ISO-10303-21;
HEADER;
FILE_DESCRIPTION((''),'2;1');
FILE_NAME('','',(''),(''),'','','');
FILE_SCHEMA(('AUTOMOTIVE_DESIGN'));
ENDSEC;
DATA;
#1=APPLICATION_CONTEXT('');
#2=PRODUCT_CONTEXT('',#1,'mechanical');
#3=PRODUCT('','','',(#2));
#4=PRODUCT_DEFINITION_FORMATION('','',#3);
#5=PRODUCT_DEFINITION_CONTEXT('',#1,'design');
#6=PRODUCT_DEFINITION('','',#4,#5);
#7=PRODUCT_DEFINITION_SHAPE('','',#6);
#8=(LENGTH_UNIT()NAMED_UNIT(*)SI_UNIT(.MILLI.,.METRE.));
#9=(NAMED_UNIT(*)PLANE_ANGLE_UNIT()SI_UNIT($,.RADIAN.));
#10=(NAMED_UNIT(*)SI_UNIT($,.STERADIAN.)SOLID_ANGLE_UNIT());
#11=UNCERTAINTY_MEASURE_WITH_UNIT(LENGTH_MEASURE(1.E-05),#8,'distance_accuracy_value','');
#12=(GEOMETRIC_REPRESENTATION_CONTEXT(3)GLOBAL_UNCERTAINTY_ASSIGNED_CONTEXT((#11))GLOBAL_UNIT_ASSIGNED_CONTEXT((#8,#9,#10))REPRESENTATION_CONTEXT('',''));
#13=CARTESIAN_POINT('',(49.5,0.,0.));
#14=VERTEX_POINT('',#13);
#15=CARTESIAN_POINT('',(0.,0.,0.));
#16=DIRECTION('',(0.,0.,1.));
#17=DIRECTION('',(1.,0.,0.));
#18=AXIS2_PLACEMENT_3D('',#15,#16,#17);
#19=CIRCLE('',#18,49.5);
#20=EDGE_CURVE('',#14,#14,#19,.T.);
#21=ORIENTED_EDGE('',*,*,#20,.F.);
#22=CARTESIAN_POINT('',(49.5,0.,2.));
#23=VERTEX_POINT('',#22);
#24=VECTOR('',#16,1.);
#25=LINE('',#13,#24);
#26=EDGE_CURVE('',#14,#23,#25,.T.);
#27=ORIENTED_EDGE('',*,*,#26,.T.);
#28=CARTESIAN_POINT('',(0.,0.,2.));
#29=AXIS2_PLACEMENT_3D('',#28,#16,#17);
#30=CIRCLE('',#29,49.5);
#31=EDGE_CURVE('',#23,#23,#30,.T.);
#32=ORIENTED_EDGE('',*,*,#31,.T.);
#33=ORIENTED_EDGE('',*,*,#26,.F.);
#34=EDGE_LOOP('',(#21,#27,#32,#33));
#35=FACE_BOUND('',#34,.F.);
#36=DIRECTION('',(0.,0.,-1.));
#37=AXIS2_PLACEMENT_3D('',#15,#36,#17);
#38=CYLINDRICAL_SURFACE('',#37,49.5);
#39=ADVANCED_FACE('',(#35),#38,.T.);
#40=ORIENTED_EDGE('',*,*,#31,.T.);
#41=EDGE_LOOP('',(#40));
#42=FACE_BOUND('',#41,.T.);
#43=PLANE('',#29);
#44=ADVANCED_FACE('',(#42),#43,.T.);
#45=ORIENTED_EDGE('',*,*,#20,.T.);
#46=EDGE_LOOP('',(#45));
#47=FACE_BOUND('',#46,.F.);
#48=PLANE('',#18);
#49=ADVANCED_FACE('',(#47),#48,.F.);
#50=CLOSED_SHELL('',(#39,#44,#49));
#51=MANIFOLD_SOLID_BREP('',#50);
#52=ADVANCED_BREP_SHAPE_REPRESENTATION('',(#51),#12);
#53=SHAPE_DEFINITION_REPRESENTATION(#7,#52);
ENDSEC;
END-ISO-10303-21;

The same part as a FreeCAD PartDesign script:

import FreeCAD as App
import Part
import Sketcher
from FreeCAD import Vector

doc = App.newDocument("Part")
params = doc.addObject("Spreadsheet::Sheet", "Params")
for row, (alias, value) in enumerate([
    ("sketch1_diameter", "99 mm"),
    ("pad1_length", "2 mm"),
], start=1):
    params.set(f"A{row}", alias)
    params.set(f"B{row}", "=" + value)
    params.setAlias(f"B{row}", alias)

body = doc.addObject("PartDesign::Body", "Body")

# Sketch on XY plane
sketch1 = body.newObject("Sketcher::SketchObject", "Sketch")
sketch1.AttachmentSupport = (doc.getObject("XY_Plane"), [""])
sketch1.MapMode = "FlatFace"
sketch1.addGeometry(Part.Circle(Vector(0, 0, 0), Vector(0, 0, 1), 49.5), False)
sketch1.addConstraint(Sketcher.Constraint("Coincident", 0, 3, -1, 1))
sketch1.addConstraint(Sketcher.Constraint("Diameter", 0, 99.0))
sketch1.setExpression("Constraints[1]", "Params.sketch1_diameter")
pad1 = body.newObject("PartDesign::Pad", "Pad")
pad1.Profile = sketch1
pad1.setExpression("Length", "Params.pad1_length")

doc.recompute()
